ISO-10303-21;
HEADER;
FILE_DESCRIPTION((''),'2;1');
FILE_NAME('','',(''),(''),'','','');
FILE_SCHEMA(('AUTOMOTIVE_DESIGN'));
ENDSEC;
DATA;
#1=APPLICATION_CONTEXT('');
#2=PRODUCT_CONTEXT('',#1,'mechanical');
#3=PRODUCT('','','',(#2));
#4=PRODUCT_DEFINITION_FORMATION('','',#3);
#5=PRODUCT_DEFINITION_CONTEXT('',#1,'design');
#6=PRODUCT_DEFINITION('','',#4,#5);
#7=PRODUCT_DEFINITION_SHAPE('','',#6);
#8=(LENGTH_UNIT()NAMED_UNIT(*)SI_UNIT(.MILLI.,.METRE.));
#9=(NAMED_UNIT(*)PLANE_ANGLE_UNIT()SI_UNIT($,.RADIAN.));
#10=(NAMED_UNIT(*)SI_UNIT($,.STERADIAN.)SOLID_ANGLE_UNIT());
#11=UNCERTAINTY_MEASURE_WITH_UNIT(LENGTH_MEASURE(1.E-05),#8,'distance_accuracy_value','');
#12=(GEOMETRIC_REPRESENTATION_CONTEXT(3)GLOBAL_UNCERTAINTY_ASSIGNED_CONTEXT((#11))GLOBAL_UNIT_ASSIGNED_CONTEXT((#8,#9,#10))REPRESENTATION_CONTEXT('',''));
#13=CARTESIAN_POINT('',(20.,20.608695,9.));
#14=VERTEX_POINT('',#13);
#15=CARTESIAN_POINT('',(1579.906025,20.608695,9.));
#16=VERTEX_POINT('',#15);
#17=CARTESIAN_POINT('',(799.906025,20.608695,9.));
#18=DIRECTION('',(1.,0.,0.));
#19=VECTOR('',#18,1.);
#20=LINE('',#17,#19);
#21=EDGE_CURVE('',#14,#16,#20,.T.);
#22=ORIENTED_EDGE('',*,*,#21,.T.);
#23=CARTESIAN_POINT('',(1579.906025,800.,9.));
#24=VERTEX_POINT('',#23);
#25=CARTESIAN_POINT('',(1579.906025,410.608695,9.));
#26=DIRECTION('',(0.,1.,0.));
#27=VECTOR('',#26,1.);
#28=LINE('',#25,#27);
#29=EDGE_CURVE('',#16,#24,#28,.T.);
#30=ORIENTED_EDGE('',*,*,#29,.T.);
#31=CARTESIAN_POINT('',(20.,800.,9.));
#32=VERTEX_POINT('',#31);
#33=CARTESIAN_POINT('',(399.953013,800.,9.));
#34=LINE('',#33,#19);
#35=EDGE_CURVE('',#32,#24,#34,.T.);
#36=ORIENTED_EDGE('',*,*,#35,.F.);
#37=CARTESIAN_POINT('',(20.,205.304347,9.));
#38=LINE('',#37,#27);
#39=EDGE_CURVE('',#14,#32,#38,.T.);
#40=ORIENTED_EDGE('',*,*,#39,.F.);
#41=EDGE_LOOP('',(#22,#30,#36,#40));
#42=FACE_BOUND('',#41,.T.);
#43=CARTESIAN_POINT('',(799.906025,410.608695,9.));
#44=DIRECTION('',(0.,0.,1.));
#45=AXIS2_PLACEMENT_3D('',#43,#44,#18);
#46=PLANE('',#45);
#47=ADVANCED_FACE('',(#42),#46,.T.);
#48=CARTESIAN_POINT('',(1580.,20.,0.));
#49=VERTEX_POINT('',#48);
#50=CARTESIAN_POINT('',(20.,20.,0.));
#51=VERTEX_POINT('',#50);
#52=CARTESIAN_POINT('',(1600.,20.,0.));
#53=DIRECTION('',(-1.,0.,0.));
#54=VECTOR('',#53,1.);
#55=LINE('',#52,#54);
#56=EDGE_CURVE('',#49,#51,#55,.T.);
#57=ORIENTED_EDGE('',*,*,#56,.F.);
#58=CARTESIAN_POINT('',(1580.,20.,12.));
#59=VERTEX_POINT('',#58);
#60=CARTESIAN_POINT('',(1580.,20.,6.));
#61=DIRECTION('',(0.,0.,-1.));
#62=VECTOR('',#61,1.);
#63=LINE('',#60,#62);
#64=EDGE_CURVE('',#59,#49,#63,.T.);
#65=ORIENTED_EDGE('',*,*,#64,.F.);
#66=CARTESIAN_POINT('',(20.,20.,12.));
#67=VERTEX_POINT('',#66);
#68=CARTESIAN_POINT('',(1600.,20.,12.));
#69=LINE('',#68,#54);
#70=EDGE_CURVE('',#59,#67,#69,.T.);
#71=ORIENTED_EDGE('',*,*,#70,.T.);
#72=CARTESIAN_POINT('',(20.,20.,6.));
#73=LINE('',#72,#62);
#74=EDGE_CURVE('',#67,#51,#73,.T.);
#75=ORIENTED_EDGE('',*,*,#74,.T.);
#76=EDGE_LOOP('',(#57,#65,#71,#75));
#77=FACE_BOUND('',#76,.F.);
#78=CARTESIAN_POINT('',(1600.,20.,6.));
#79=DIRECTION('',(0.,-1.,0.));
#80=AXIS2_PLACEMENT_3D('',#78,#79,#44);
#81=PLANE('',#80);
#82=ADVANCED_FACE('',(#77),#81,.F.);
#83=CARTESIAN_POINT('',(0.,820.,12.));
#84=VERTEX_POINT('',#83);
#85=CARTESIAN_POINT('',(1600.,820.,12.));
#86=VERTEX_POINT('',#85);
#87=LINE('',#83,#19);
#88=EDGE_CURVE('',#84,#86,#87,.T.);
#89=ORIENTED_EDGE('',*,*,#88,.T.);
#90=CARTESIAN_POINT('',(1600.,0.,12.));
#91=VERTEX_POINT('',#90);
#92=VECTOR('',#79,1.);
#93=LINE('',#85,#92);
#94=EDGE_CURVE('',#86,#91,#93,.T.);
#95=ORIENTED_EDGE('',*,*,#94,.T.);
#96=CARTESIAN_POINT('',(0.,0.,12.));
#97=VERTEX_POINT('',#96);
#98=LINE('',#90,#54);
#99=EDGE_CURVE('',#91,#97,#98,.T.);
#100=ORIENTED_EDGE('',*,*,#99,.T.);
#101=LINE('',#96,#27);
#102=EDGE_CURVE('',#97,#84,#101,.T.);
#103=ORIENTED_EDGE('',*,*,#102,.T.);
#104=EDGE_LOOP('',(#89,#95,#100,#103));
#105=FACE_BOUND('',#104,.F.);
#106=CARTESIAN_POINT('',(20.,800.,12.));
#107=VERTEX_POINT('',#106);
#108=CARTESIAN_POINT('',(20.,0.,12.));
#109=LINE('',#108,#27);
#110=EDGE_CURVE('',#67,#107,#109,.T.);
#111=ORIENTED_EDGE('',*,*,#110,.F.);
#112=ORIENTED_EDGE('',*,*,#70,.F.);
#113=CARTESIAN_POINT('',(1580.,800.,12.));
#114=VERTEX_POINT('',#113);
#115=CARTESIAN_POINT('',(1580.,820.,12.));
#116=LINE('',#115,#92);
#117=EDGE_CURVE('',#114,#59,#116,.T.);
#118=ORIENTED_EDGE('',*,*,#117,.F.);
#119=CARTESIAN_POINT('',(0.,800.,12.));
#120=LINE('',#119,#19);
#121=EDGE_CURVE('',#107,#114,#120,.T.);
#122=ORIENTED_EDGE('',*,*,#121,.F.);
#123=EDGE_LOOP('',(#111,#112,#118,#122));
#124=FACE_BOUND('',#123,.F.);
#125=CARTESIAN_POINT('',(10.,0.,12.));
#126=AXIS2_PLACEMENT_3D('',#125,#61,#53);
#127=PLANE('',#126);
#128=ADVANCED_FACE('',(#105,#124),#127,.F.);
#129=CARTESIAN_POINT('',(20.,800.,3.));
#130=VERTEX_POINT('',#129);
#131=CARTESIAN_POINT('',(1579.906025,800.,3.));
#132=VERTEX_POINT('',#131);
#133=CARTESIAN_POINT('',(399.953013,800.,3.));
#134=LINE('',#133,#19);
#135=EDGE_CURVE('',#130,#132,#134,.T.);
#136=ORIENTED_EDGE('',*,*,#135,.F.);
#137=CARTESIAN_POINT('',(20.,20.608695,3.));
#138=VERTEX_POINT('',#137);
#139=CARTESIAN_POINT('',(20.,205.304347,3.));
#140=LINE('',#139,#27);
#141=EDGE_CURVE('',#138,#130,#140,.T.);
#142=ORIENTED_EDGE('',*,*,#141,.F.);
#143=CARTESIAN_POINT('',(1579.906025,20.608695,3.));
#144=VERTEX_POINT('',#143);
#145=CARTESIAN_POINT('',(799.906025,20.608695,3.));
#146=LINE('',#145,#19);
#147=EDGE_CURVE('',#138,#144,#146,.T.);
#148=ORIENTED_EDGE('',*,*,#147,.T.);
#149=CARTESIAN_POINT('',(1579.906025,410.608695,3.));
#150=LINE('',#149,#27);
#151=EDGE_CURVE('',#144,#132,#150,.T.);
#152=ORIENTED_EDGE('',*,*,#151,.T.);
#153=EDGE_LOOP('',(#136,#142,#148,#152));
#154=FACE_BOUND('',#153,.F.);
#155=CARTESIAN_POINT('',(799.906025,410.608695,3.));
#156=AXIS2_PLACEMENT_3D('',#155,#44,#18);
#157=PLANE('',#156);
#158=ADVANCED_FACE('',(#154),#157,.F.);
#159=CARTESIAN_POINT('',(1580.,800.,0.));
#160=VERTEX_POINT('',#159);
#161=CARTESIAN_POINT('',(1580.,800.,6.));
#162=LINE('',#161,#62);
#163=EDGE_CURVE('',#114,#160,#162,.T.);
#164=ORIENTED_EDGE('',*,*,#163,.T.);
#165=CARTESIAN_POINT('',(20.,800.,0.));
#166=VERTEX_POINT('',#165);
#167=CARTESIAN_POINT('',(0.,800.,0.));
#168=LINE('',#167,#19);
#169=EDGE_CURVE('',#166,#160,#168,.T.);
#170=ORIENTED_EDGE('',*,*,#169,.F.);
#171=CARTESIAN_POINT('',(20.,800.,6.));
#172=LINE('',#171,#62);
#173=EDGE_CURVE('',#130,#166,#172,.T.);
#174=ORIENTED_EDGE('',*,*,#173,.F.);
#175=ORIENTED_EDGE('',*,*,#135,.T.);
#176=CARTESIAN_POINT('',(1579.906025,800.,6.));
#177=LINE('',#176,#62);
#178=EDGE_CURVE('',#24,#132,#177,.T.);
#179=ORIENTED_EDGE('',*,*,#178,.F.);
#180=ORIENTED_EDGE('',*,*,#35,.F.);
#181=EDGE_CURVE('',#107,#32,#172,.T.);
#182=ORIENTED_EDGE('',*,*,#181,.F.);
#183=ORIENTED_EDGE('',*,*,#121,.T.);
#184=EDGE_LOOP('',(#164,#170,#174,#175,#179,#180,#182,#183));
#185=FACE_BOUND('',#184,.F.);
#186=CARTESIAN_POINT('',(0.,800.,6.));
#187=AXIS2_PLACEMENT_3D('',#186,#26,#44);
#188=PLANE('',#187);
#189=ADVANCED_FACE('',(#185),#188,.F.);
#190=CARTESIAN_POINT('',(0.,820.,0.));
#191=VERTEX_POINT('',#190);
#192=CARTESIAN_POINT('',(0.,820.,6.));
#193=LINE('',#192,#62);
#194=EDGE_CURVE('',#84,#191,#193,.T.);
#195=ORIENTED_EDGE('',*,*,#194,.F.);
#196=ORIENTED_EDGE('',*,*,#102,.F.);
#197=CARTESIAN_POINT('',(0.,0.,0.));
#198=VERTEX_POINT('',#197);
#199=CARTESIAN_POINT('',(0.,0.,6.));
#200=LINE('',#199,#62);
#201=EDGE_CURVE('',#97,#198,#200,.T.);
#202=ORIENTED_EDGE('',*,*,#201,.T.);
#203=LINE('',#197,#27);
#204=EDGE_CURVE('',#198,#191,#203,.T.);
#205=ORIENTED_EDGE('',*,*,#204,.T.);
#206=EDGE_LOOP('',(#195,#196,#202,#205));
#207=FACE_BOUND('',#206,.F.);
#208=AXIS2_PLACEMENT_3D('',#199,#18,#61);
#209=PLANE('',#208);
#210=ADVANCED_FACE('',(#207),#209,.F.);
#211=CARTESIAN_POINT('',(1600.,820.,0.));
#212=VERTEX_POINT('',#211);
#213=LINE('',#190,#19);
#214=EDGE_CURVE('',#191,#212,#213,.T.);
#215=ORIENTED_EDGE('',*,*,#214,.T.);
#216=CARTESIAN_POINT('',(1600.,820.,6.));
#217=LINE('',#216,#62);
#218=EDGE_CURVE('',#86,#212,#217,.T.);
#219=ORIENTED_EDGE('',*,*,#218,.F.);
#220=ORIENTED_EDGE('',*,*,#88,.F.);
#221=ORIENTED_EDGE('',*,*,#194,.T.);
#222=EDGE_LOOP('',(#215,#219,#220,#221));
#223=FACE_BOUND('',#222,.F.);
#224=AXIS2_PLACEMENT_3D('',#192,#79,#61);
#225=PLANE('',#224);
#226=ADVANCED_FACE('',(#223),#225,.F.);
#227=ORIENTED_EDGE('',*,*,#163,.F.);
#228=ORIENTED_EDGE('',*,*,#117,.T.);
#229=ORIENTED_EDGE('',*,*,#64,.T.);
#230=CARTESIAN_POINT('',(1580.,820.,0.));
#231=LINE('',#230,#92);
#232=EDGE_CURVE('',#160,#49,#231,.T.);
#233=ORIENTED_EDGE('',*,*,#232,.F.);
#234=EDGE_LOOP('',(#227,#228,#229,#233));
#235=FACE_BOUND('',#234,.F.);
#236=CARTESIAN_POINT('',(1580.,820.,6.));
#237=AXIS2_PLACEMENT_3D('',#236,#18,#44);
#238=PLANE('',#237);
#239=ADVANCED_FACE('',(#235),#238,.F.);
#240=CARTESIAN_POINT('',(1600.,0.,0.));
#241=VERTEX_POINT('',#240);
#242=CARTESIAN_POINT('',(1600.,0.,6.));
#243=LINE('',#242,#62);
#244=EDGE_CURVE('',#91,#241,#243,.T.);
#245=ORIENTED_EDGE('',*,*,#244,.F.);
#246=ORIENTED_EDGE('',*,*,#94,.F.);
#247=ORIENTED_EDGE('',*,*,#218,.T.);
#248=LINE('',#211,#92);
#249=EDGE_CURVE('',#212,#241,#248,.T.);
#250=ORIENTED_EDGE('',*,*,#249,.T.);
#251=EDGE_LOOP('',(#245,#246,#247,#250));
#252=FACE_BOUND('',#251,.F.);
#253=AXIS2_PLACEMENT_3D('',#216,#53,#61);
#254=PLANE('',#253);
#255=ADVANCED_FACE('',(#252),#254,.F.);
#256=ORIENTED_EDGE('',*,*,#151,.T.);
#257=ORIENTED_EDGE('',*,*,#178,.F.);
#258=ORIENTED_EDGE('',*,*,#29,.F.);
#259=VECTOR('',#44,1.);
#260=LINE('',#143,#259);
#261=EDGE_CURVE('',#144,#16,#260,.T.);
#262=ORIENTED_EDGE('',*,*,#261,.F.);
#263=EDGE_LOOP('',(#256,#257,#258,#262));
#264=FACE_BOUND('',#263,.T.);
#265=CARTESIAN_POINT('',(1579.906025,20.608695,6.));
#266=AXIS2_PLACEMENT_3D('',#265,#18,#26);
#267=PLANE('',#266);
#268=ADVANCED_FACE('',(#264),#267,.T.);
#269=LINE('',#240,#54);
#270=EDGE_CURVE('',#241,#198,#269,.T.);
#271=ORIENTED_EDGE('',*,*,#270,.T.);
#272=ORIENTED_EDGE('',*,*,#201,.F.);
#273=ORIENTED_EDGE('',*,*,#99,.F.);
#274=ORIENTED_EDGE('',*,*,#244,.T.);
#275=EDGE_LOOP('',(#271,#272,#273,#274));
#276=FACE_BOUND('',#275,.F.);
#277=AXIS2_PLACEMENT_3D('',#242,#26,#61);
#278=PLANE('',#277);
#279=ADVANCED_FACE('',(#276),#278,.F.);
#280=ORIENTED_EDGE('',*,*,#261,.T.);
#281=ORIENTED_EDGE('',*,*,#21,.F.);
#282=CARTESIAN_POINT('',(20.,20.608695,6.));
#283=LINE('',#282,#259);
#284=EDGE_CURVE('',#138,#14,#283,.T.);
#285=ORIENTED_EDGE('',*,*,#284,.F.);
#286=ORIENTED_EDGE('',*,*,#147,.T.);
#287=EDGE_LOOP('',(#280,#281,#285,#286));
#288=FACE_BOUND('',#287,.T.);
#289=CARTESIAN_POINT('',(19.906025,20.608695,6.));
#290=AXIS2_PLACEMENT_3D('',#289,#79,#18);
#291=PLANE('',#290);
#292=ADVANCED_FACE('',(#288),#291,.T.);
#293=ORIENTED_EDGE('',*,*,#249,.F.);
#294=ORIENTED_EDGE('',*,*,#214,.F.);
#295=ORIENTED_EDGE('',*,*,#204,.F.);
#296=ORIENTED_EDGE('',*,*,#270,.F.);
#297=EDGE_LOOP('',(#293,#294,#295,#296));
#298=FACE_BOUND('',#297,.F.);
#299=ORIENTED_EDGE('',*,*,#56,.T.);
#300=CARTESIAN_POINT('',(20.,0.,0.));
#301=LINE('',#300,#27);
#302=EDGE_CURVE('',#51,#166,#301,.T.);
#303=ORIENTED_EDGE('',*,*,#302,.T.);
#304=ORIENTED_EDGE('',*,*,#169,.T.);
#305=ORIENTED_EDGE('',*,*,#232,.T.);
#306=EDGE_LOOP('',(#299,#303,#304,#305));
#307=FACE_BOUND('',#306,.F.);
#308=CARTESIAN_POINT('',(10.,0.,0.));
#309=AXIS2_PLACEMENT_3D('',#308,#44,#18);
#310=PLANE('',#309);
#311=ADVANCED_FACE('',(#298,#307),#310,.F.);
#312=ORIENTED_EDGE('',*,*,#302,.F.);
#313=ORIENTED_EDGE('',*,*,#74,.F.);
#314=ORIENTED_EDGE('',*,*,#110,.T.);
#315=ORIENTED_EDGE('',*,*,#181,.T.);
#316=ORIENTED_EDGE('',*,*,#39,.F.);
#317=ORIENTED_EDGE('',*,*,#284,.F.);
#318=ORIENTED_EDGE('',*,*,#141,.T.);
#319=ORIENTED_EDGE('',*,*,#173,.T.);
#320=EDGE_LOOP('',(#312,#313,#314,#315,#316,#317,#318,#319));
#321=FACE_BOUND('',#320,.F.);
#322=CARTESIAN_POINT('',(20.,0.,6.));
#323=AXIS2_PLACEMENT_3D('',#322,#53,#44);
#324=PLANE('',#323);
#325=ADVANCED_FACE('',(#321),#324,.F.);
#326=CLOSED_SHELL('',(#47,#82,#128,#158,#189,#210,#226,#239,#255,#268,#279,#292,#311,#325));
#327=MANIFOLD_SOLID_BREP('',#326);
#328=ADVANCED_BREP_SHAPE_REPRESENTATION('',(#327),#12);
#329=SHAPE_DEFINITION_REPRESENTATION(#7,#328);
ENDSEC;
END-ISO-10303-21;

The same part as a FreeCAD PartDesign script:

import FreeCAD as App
import Part
import Sketcher
from FreeCAD import Vector

doc = App.newDocument("Part")
body = doc.addObject("PartDesign::Body", "Body")

sketch1 = body.newObject("Sketcher::SketchObject", "Sketch")
sketch1.AttachmentSupport = (doc.getObject("XZ_Plane"), [""])
sketch1.MapMode = "FlatFace"
sketch1.addGeometry(Part.LineSegment(Vector(0, 12, 0), Vector(0, 0, 0)), False)
sketch1.addGeometry(Part.LineSegment(Vector(0, 0, 0), Vector(20, 0, 0)), False)
sketch1.addGeometry(Part.LineSegment(Vector(20, 0, 0), Vector(20, 12, 0)), False)
sketch1.addGeometry(Part.LineSegment(Vector(20, 12, 0), Vector(0, 12, 0)), False)
sketch1.addConstraint(Sketcher.Constraint("Coincident", 0, 2, 1, 1))
sketch1.addConstraint(Sketcher.Constraint("Coincident", 1, 2, 2, 1))
sketch1.addConstraint(Sketcher.Constraint("Coincident", 2, 2, 3, 1))
sketch1.addConstraint(Sketcher.Constraint("Coincident", 3, 2, 0, 1))
sketch1.addConstraint(Sketcher.Constraint("Vertical", 0))
sketch1.addConstraint(Sketcher.Constraint("Horizontal", 1))
sketch1.addConstraint(Sketcher.Constraint("Vertical", 2))
sketch1.addConstraint(Sketcher.Constraint("Horizontal", 3))
sketch1.addConstraint(Sketcher.Constraint("Coincident", 0, 2, -1, 1))
sketch1.addConstraint(Sketcher.Constraint("DistanceX", 1, 1, 1, 2, 20.0))
sketch1.addConstraint(Sketcher.Constraint("DistanceY", 0, 2, 0, 1, 12.0))

sketch2 = body.newObject("Sketcher::SketchObject", "Sketch001")
sketch2.AttachmentSupport = (doc.getObject("XY_Plane"), [""])
sketch2.MapMode = "FlatFace"
sketch2.addGeometry(Part.LineSegment(Vector(0, 0, 0), Vector(0, 820, 0)), False)
sketch2.addGeometry(Part.LineSegment(Vector(0, 820, 0), Vector(1600, 820, 0)), False)
sketch2.addGeometry(Part.LineSegment(Vector(1600, 820, 0), Vector(1600, 0, 0)), False)
sketch2.addGeometry(Part.LineSegment(Vector(1600, 0, 0), Vector(0, 0, 0)), False)
sketch2.addConstraint(Sketcher.Constraint("Coincident", 0, 2, 1, 1))
sketch2.addConstraint(Sketcher.Constraint("Coincident", 1, 2, 2, 1))
sketch2.addConstraint(Sketcher.Constraint("Coincident", 2, 2, 3, 1))
sketch2.addConstraint(Sketcher.Constraint("Coincident", 3, 2, 0, 1))
sketch2.addConstraint(Sketcher.Constraint("Vertical", 0))
sketch2.addConstraint(Sketcher.Constraint("Horizontal", 1))
sketch2.addConstraint(Sketcher.Constraint("Vertical", 2))
sketch2.addConstraint(Sketcher.Constraint("Horizontal", 3))
sketch2.addConstraint(Sketcher.Constraint("Coincident", 3, 2, -1, 1))
sketch2.addConstraint(Sketcher.Constraint("DistanceX", 1, 1, 1, 2, 1600.0))
sketch2.addConstraint(Sketcher.Constraint("DistanceY", 0, 1, 0, 2, 820.0))
doc.recompute()

additivepipe = body.newObject("PartDesign::AdditivePipe", "AdditivePipe")
additivepipe.Profile = sketch1
additivepipe.Spine = (sketch2, ["Edge1", "Edge2", "Edge3", "Edge4"])
additivepipe.Transition = "Right corner"

sketch3 = body.newObject("Sketcher::SketchObject", "Sketch002")
sketch3.AttachmentSupport = (doc.getObject("XY_Plane"), [""])
sketch3.MapMode = "FlatFace"
sketch3.AttachmentOffset = App.Placement(Vector(0, 0, 6), App.Rotation())
sketch3.addGeometry(Part.LineSegment(Vector(20, 801, 0), Vector(20, 21, 0)), False)
sketch3.addGeometry(Part.LineSegment(Vector(20, 21, 0), Vector(1580, 21, 0)), False)
sketch3.addGeometry(Part.LineSegment(Vector(1580, 21, 0), Vector(1580, 801, 0)), False)
sketch3.addGeometry(Part.LineSegment(Vector(1580, 801, 0), Vector(20, 801, 0)), False)
sketch3.addConstraint(Sketcher.Constraint("Coincident", 0, 2, 1, 1))
sketch3.addConstraint(Sketcher.Constraint("Coincident", 1, 2, 2, 1))
sketch3.addConstraint(Sketcher.Constraint("Coincident", 2, 2, 3, 1))
sketch3.addConstraint(Sketcher.Constraint("Coincident", 3, 2, 0, 1))
sketch3.addConstraint(Sketcher.Constraint("Vertical", 0))
sketch3.addConstraint(Sketcher.Constraint("Horizontal", 1))
sketch3.addConstraint(Sketcher.Constraint("Vertical", 2))
sketch3.addConstraint(Sketcher.Constraint("Horizontal", 3))
sketch3.addConstraint(Sketcher.Constraint("DistanceX", 1, 1, 1, 2, 1560.0))
sketch3.addConstraint(Sketcher.Constraint("DistanceY", 0, 2, 0, 1, 780.0))
sketch3.addConstraint(Sketcher.Constraint("DistanceX", -1, 1, 0, 2, 19.906025))
sketch3.addConstraint(Sketcher.Constraint("DistanceY", -1, 1, 0, 2, 20.608695))
pad1 = body.newObject("PartDesign::Pad", "Pad")
pad1.Profile = sketch3
pad1.Length = 6
pad1.Midplane = True

doc.recompute()
